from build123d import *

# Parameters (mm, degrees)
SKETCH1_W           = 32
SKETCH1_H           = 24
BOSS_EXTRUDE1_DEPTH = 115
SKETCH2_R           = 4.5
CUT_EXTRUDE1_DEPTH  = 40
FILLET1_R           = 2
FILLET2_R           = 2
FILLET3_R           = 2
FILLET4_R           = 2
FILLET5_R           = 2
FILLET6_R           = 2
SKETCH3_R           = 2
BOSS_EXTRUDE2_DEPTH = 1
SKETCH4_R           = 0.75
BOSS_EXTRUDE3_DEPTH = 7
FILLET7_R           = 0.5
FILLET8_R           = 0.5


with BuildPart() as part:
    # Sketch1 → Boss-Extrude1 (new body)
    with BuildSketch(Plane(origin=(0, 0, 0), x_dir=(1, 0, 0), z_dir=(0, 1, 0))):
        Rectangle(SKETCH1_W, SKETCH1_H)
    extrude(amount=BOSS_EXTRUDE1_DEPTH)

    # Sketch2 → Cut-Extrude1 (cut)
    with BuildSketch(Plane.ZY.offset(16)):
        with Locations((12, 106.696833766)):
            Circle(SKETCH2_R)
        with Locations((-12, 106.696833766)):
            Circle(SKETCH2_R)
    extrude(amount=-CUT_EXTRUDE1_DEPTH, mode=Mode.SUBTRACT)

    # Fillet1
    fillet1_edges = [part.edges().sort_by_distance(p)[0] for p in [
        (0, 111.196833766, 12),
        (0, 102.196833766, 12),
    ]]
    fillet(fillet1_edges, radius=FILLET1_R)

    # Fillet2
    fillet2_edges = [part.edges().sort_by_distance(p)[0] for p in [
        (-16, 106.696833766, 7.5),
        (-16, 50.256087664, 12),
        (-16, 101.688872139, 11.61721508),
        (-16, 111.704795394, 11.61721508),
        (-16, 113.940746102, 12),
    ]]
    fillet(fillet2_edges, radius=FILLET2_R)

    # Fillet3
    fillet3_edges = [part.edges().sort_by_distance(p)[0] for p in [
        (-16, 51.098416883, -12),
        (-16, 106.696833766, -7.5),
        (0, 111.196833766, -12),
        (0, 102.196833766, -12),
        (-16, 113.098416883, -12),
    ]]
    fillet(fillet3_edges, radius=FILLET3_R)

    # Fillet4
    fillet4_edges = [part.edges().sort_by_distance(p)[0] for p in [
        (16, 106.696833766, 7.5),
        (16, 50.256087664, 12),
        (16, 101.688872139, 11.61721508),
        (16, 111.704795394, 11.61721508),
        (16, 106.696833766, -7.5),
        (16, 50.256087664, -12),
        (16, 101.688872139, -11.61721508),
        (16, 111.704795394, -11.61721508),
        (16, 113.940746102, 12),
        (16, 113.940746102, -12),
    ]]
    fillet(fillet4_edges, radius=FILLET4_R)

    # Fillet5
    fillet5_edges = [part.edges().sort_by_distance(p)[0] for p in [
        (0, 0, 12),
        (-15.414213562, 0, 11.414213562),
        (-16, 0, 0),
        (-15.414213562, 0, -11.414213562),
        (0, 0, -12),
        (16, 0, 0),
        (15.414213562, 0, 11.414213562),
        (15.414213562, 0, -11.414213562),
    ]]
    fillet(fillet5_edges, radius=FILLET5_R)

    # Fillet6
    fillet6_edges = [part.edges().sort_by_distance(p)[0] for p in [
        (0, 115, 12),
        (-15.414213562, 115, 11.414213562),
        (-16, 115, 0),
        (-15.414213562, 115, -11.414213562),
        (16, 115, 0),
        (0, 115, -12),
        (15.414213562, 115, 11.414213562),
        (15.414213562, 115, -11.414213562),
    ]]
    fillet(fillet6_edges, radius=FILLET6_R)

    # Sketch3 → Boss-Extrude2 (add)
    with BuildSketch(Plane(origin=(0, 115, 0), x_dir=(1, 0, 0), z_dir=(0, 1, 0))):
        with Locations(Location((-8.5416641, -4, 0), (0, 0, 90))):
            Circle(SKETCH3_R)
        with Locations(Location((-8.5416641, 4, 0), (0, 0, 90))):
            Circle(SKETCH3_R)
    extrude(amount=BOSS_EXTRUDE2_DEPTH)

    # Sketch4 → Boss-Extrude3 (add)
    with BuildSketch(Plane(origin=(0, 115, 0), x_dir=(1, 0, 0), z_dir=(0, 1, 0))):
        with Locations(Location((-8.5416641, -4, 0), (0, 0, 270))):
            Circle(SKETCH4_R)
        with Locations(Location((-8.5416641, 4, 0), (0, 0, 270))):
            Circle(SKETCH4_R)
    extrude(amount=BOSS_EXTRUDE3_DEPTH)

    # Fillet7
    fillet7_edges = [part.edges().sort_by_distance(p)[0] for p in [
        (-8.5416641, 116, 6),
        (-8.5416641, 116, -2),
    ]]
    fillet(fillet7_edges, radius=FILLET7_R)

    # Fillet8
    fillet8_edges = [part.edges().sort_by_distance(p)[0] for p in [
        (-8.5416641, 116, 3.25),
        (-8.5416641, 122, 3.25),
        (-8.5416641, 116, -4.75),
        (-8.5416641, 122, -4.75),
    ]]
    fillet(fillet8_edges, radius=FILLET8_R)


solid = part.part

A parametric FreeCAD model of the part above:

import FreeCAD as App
import Part
import Sketcher
Q = App.Units.Quantity


def edges_at(feature, points):
    """Names of the edges that pass closest to the given points."""
    edges = feature.Shape.Edges
    near = lambda p: min(range(len(edges)), key=lambda i: edges[i].distToShape(Part.Vertex(*p))[0])
    return sorted({f"Edge{near(p) + 1}" for p in points})

doc = App.newDocument("Part")
body = doc.addObject("PartDesign::Body", "Body")

sketch1 = doc.addObject("Sketcher::SketchObject", "Sketch")
body.addObject(sketch1)
sketch1.AttachmentSupport = (doc.XZ_Plane, [""])
sketch1.MapMode = "FlatFace"
sketch1.addGeometry([
    Part.LineSegment(App.Vector(-16, -12, 0), App.Vector(-16, 12, 0)),
    Part.LineSegment(App.Vector(-16, 12, 0), App.Vector(16, 12, 0)),
    Part.LineSegment(App.Vector(16, 12, 0), App.Vector(16, -12, 0)),
    Part.LineSegment(App.Vector(16, -12, 0), App.Vector(-16, -12, 0)),
], False)
sketch1.addConstraint([
    Sketcher.Constraint("Coincident", 0, 2, 1, 1),
    Sketcher.Constraint("Coincident", 1, 2, 2, 1),
    Sketcher.Constraint("Coincident", 2, 2, 3, 1),
    Sketcher.Constraint("Coincident", 3, 2, 0, 1),
    Sketcher.Constraint("Vertical", 0),
    Sketcher.Constraint("Horizontal", 1),
    Sketcher.Constraint("Vertical", 2),
    Sketcher.Constraint("Horizontal", 3),
    Sketcher.Constraint("Symmetric", 0, 2, 2, 2, -1, 1),
    Sketcher.Constraint("DistanceX", 1, 1, 1, 2, Q("32 mm")),
    Sketcher.Constraint("DistanceY", 0, 1, 0, 2, Q("24 mm")),
])
pad1 = doc.addObject("PartDesign::Pad", "Pad")
body.addObject(pad1)
pad1.Profile = sketch1
pad1.Length = 115
pad1.Reversed = True

sketch2 = doc.addObject("Sketcher::SketchObject", "Sketch001")
body.addObject(sketch2)
sketch2.AttachmentSupport = (doc.YZ_Plane, [""])
sketch2.MapMode = "FlatFace"
sketch2.AttachmentOffset = App.Placement(App.Vector(0, 0, -16), App.Rotation())
sketch2.addGeometry([
    Part.Circle(App.Vector(106.7, 12, 0), App.Vector(0, 0, 1), 4.5),
    Part.Circle(App.Vector(106.7, -12, 0), App.Vector(0, 0, 1), 4.5),
], False)
sketch2.addConstraint([
    Sketcher.Constraint("Equal", 0, 1),
    Sketcher.Constraint("Symmetric", 0, 3, 1, 3, -1),
    Sketcher.Constraint("Diameter", 0, Q("9 mm")),
    Sketcher.Constraint("DistanceY", -1, 1, 0, 3, Q("12 mm")),
    Sketcher.Constraint("DistanceX", -1, 1, 0, 3, Q("106.696834 mm")),
])
pocket1 = doc.addObject("PartDesign::Pocket", "Pocket")
body.addObject(pocket1)
pocket1.Profile = sketch2
pocket1.Length = 40
pocket1.Reversed = True
doc.recompute()

fillet = doc.addObject("PartDesign::Fillet", "Fillet")
body.addObject(fillet)
fillet.Base = (pocket1, edges_at(pocket1, [(0, 111.197, 12), (0, 102.197, 12)]))
fillet.Radius = 2
doc.recompute()

fillet2 = doc.addObject("PartDesign::Fillet", "Fillet001")
body.addObject(fillet2)
fillet2.Base = (fillet, edges_at(fillet, [
    (-16, 106.697, 7.5),
    (-16, 50.256, 12),
    (-16, 101.689, 11.617),
    (-16, 111.705, 11.617),
    (-16, 113.941, 12),
]))
fillet2.Radius = 2
doc.recompute()

fillet3 = doc.addObject("PartDesign::Fillet", "Fillet002")
body.addObject(fillet3)
fillet3.Base = (fillet2, edges_at(fillet2, [
    (-16, 51.098, -12),
    (-16, 106.697, -7.5),
    (0, 111.197, -12),
    (0, 102.197, -12),
    (-16, 113.098, -12),
]))
fillet3.Radius = 2
doc.recompute()

fillet4 = doc.addObject("PartDesign::Fillet", "Fillet003")
body.addObject(fillet4)
fillet4.Base = (fillet3, edges_at(fillet3, [
    (16, 106.697, 7.5),
    (16, 50.256, 12),
    (16, 101.689, 11.617),
    (16, 111.705, 11.617),
    (16, 106.697, -7.5),
    (16, 50.256, -12),
    (16, 101.689, -11.617),
    (16, 111.705, -11.617),
    (16, 113.941, 12),
    (16, 113.941, -12),
]))
fillet4.Radius = 2
doc.recompute()

fillet5 = doc.addObject("PartDesign::Fillet", "Fillet004")
body.addObject(fillet5)
fillet5.Base = (fillet4, edges_at(fillet4, [
    (0, 0, 12),
    (-15.414, 0, 11.414),
    (-16, 0, 0),
    (-15.414, 0, -11.414),
    (0, 0, -12),
    (16, 0, 0),
    (15.414, 0, 11.414),
    (15.414, 0, -11.414),
]))
fillet5.Radius = 2
doc.recompute()

fillet6 = doc.addObject("PartDesign::Fillet", "Fillet005")
body.addObject(fillet6)
fillet6.Base = (fillet5, edges_at(fillet5, [
    (0, 115, 12),
    (-15.414, 115, 11.414),
    (-16, 115, 0),
    (-15.414, 115, -11.414),
    (16, 115, 0),
    (0, 115, -12),
    (15.414, 115, 11.414),
    (15.414, 115, -11.414),
]))
fillet6.Radius = 2

sketch3 = doc.addObject("Sketcher::SketchObject", "Sketch002")
body.addObject(sketch3)
sketch3.AttachmentSupport = (doc.XZ_Plane, [""])
sketch3.MapMode = "FlatFace"
sketch3.AttachmentOffset = App.Placement(App.Vector(0, 0, -115), App.Rotation())
sketch3.addGeometry([
    Part.Circle(App.Vector(-8.5, 4, 0), App.Vector(0, 0, 1), 2),
    Part.Circle(App.Vector(-8.5, -4, 0), App.Vector(0, 0, 1), 2),
], False)
sketch3.addConstraint([
    Sketcher.Constraint("Equal", 0, 1),
    Sketcher.Constraint("Symmetric", 0, 3, 1, 3, -1),
    Sketcher.Constraint("Diameter", 0, Q("4 mm")),
    Sketcher.Constraint("DistanceY", -1, 1, 0, 3, Q("4 mm")),
    Sketcher.Constraint("DistanceX", 0, 3, -1, 1, Q("8.541664 mm")),
])
pad2 = doc.addObject("PartDesign::Pad", "Pad001")
body.addObject(pad2)
pad2.Profile = sketch3
pad2.Length = 1
pad2.Reversed = True

sketch4 = doc.addObject("Sketcher::SketchObject", "Sketch003")
body.addObject(sketch4)
sketch4.AttachmentSupport = (doc.XZ_Plane, [""])
sketch4.MapMode = "FlatFace"
sketch4.AttachmentOffset = App.Placement(App.Vector(0, 0, -115), App.Rotation())
sketch4.addGeometry([
    Part.Circle(App.Vector(-8.5, 4, 0), App.Vector(0, 0, 1), 0.8),
    Part.Circle(App.Vector(-8.5, -4, 0), App.Vector(0, 0, 1), 0.8),
], False)
sketch4.addConstraint([
    Sketcher.Constraint("Equal", 0, 1),
    Sketcher.Constraint("Symmetric", 0, 3, 1, 3, -1),
    Sketcher.Constraint("Diameter", 0, Q("1.5 mm")),
    Sketcher.Constraint("DistanceY", -1, 1, 0, 3, Q("4 mm")),
    Sketcher.Constraint("DistanceX", 0, 3, -1, 1, Q("8.541664 mm")),
])
pad3 = doc.addObject("PartDesign::Pad", "Pad002")
body.addObject(pad3)
pad3.Profile = sketch4
pad3.Length = 7
pad3.Reversed = True
doc.recompute()

fillet7 = doc.addObject("PartDesign::Fillet", "Fillet006")
body.addObject(fillet7)
fillet7.Base = (pad3, edges_at(pad3, [(-8.542, 116, 6), (-8.542, 116, -2)]))
fillet7.Radius = 0.5
doc.recompute()

fillet8 = doc.addObject("PartDesign::Fillet", "Fillet007")
body.addObject(fillet8)
fillet8.Base = (fillet7, edges_at(fillet7, [
    (-8.542, 116, 3.25),
    (-8.542, 122, 3.25),
    (-8.542, 116, -4.75),
    (-8.542, 122, -4.75),
]))
fillet8.Radius = 0.5

doc.recompute()
